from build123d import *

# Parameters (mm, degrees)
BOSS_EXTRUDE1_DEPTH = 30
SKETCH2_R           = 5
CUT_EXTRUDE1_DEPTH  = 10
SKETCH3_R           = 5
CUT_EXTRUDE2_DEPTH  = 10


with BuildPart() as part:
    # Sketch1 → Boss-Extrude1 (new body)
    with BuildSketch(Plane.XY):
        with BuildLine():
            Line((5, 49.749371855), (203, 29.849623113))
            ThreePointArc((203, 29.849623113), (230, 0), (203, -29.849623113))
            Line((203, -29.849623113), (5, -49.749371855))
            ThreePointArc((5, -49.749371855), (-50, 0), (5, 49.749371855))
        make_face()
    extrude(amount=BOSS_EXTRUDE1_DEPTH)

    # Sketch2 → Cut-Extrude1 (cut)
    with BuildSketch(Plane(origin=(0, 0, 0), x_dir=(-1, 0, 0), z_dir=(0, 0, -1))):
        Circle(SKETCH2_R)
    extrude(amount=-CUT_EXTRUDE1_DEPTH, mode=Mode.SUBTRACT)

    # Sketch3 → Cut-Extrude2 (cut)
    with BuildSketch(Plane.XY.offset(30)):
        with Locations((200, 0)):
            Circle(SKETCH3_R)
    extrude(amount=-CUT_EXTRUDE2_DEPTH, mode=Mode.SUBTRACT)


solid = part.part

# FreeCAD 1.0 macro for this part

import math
import FreeCAD as App
import Part
import Sketcher

V = App.Vector

doc = App.newDocument("Part")
body = doc.addObject("PartDesign::Body", "Body")

# Sketch on XY plane
sketch1 = body.newObject("Sketcher::SketchObject", "Sketch")
sketch1.AttachmentSupport = (doc.getObject("XY_Plane"), [""])
sketch1.MapMode = "FlatFace"
sketch1.addGeometry([
    Part.LineSegment(V(203, 30, 0), V(5, 50, 0)),
    Part.ArcOfCircle(Part.Circle(V(0, 0, 0), V(0, 0, 1), 50), math.radians(84), math.radians(276)),
    Part.LineSegment(V(5, -50, 0), V(203, -30, 0)),
    Part.ArcOfCircle(Part.Circle(V(200, 0, 0), V(0, 0, 1), 30), math.radians(-84), math.radians(84)),
], False)
sketch1.addConstraint([
    Sketcher.Constraint("Tangent", 0, 2, 1, 1),
    Sketcher.Constraint("Tangent", 1, 2, 2, 1),
    Sketcher.Constraint("Tangent", 2, 2, 3, 1),
    Sketcher.Constraint("Tangent", 3, 2, 0, 1),
    Sketcher.Constraint("Coincident", 1, 3, -1, 1),
    Sketcher.Constraint("PointOnObject", 3, 3, -1),
    Sketcher.Constraint("Radius", 1, 50.0),
    Sketcher.Constraint("Radius", 3, 30.0),
    Sketcher.Constraint("DistanceX", -1, 1, 3, 3, 200.0),
])
pad1 = body.newObject("PartDesign::Pad", "Pad")
pad1.Profile = sketch1
pad1.Length = 30

# Sketch on XY plane
sketch2 = body.newObject("Sketcher::SketchObject", "Sketch001")
sketch2.AttachmentSupport = (doc.getObject("XY_Plane"), [""])
sketch2.MapMode = "FlatFace"
sketch2.addGeometry(Part.Circle(V(0, 0, 0), V(0, 0, 1), 5), False)
sketch2.addConstraint([
    Sketcher.Constraint("Coincident", 0, 3, -1, 1),
    Sketcher.Constraint("Diameter", 0, 10.0),
])
pocket1 = body.newObject("PartDesign::Pocket", "Pocket")
pocket1.Profile = sketch2
pocket1.Length = 10
pocket1.Reversed = True

# Sketch on XY plane
sketch3 = body.newObject("Sketcher::SketchObject", "Sketch002")
sketch3.AttachmentSupport = (doc.getObject("XY_Plane"), [""])
sketch3.MapMode = "FlatFace"
sketch3.AttachmentOffset = App.Placement(V(0, 0, 30), App.Rotation())
sketch3.addGeometry(Part.Circle(V(200, 0, 0), V(0, 0, 1), 5), False)
sketch3.addConstraint([
    Sketcher.Constraint("PointOnObject", 0, 3, -1),
    Sketcher.Constraint("Diameter", 0, 10.0),
    Sketcher.Constraint("DistanceX", -1, 1, 0, 3, 200.0),
])
pocket2 = body.newObject("PartDesign::Pocket", "Pocket001")
pocket2.Profile = sketch3
pocket2.Length = 10

doc.recompute()
